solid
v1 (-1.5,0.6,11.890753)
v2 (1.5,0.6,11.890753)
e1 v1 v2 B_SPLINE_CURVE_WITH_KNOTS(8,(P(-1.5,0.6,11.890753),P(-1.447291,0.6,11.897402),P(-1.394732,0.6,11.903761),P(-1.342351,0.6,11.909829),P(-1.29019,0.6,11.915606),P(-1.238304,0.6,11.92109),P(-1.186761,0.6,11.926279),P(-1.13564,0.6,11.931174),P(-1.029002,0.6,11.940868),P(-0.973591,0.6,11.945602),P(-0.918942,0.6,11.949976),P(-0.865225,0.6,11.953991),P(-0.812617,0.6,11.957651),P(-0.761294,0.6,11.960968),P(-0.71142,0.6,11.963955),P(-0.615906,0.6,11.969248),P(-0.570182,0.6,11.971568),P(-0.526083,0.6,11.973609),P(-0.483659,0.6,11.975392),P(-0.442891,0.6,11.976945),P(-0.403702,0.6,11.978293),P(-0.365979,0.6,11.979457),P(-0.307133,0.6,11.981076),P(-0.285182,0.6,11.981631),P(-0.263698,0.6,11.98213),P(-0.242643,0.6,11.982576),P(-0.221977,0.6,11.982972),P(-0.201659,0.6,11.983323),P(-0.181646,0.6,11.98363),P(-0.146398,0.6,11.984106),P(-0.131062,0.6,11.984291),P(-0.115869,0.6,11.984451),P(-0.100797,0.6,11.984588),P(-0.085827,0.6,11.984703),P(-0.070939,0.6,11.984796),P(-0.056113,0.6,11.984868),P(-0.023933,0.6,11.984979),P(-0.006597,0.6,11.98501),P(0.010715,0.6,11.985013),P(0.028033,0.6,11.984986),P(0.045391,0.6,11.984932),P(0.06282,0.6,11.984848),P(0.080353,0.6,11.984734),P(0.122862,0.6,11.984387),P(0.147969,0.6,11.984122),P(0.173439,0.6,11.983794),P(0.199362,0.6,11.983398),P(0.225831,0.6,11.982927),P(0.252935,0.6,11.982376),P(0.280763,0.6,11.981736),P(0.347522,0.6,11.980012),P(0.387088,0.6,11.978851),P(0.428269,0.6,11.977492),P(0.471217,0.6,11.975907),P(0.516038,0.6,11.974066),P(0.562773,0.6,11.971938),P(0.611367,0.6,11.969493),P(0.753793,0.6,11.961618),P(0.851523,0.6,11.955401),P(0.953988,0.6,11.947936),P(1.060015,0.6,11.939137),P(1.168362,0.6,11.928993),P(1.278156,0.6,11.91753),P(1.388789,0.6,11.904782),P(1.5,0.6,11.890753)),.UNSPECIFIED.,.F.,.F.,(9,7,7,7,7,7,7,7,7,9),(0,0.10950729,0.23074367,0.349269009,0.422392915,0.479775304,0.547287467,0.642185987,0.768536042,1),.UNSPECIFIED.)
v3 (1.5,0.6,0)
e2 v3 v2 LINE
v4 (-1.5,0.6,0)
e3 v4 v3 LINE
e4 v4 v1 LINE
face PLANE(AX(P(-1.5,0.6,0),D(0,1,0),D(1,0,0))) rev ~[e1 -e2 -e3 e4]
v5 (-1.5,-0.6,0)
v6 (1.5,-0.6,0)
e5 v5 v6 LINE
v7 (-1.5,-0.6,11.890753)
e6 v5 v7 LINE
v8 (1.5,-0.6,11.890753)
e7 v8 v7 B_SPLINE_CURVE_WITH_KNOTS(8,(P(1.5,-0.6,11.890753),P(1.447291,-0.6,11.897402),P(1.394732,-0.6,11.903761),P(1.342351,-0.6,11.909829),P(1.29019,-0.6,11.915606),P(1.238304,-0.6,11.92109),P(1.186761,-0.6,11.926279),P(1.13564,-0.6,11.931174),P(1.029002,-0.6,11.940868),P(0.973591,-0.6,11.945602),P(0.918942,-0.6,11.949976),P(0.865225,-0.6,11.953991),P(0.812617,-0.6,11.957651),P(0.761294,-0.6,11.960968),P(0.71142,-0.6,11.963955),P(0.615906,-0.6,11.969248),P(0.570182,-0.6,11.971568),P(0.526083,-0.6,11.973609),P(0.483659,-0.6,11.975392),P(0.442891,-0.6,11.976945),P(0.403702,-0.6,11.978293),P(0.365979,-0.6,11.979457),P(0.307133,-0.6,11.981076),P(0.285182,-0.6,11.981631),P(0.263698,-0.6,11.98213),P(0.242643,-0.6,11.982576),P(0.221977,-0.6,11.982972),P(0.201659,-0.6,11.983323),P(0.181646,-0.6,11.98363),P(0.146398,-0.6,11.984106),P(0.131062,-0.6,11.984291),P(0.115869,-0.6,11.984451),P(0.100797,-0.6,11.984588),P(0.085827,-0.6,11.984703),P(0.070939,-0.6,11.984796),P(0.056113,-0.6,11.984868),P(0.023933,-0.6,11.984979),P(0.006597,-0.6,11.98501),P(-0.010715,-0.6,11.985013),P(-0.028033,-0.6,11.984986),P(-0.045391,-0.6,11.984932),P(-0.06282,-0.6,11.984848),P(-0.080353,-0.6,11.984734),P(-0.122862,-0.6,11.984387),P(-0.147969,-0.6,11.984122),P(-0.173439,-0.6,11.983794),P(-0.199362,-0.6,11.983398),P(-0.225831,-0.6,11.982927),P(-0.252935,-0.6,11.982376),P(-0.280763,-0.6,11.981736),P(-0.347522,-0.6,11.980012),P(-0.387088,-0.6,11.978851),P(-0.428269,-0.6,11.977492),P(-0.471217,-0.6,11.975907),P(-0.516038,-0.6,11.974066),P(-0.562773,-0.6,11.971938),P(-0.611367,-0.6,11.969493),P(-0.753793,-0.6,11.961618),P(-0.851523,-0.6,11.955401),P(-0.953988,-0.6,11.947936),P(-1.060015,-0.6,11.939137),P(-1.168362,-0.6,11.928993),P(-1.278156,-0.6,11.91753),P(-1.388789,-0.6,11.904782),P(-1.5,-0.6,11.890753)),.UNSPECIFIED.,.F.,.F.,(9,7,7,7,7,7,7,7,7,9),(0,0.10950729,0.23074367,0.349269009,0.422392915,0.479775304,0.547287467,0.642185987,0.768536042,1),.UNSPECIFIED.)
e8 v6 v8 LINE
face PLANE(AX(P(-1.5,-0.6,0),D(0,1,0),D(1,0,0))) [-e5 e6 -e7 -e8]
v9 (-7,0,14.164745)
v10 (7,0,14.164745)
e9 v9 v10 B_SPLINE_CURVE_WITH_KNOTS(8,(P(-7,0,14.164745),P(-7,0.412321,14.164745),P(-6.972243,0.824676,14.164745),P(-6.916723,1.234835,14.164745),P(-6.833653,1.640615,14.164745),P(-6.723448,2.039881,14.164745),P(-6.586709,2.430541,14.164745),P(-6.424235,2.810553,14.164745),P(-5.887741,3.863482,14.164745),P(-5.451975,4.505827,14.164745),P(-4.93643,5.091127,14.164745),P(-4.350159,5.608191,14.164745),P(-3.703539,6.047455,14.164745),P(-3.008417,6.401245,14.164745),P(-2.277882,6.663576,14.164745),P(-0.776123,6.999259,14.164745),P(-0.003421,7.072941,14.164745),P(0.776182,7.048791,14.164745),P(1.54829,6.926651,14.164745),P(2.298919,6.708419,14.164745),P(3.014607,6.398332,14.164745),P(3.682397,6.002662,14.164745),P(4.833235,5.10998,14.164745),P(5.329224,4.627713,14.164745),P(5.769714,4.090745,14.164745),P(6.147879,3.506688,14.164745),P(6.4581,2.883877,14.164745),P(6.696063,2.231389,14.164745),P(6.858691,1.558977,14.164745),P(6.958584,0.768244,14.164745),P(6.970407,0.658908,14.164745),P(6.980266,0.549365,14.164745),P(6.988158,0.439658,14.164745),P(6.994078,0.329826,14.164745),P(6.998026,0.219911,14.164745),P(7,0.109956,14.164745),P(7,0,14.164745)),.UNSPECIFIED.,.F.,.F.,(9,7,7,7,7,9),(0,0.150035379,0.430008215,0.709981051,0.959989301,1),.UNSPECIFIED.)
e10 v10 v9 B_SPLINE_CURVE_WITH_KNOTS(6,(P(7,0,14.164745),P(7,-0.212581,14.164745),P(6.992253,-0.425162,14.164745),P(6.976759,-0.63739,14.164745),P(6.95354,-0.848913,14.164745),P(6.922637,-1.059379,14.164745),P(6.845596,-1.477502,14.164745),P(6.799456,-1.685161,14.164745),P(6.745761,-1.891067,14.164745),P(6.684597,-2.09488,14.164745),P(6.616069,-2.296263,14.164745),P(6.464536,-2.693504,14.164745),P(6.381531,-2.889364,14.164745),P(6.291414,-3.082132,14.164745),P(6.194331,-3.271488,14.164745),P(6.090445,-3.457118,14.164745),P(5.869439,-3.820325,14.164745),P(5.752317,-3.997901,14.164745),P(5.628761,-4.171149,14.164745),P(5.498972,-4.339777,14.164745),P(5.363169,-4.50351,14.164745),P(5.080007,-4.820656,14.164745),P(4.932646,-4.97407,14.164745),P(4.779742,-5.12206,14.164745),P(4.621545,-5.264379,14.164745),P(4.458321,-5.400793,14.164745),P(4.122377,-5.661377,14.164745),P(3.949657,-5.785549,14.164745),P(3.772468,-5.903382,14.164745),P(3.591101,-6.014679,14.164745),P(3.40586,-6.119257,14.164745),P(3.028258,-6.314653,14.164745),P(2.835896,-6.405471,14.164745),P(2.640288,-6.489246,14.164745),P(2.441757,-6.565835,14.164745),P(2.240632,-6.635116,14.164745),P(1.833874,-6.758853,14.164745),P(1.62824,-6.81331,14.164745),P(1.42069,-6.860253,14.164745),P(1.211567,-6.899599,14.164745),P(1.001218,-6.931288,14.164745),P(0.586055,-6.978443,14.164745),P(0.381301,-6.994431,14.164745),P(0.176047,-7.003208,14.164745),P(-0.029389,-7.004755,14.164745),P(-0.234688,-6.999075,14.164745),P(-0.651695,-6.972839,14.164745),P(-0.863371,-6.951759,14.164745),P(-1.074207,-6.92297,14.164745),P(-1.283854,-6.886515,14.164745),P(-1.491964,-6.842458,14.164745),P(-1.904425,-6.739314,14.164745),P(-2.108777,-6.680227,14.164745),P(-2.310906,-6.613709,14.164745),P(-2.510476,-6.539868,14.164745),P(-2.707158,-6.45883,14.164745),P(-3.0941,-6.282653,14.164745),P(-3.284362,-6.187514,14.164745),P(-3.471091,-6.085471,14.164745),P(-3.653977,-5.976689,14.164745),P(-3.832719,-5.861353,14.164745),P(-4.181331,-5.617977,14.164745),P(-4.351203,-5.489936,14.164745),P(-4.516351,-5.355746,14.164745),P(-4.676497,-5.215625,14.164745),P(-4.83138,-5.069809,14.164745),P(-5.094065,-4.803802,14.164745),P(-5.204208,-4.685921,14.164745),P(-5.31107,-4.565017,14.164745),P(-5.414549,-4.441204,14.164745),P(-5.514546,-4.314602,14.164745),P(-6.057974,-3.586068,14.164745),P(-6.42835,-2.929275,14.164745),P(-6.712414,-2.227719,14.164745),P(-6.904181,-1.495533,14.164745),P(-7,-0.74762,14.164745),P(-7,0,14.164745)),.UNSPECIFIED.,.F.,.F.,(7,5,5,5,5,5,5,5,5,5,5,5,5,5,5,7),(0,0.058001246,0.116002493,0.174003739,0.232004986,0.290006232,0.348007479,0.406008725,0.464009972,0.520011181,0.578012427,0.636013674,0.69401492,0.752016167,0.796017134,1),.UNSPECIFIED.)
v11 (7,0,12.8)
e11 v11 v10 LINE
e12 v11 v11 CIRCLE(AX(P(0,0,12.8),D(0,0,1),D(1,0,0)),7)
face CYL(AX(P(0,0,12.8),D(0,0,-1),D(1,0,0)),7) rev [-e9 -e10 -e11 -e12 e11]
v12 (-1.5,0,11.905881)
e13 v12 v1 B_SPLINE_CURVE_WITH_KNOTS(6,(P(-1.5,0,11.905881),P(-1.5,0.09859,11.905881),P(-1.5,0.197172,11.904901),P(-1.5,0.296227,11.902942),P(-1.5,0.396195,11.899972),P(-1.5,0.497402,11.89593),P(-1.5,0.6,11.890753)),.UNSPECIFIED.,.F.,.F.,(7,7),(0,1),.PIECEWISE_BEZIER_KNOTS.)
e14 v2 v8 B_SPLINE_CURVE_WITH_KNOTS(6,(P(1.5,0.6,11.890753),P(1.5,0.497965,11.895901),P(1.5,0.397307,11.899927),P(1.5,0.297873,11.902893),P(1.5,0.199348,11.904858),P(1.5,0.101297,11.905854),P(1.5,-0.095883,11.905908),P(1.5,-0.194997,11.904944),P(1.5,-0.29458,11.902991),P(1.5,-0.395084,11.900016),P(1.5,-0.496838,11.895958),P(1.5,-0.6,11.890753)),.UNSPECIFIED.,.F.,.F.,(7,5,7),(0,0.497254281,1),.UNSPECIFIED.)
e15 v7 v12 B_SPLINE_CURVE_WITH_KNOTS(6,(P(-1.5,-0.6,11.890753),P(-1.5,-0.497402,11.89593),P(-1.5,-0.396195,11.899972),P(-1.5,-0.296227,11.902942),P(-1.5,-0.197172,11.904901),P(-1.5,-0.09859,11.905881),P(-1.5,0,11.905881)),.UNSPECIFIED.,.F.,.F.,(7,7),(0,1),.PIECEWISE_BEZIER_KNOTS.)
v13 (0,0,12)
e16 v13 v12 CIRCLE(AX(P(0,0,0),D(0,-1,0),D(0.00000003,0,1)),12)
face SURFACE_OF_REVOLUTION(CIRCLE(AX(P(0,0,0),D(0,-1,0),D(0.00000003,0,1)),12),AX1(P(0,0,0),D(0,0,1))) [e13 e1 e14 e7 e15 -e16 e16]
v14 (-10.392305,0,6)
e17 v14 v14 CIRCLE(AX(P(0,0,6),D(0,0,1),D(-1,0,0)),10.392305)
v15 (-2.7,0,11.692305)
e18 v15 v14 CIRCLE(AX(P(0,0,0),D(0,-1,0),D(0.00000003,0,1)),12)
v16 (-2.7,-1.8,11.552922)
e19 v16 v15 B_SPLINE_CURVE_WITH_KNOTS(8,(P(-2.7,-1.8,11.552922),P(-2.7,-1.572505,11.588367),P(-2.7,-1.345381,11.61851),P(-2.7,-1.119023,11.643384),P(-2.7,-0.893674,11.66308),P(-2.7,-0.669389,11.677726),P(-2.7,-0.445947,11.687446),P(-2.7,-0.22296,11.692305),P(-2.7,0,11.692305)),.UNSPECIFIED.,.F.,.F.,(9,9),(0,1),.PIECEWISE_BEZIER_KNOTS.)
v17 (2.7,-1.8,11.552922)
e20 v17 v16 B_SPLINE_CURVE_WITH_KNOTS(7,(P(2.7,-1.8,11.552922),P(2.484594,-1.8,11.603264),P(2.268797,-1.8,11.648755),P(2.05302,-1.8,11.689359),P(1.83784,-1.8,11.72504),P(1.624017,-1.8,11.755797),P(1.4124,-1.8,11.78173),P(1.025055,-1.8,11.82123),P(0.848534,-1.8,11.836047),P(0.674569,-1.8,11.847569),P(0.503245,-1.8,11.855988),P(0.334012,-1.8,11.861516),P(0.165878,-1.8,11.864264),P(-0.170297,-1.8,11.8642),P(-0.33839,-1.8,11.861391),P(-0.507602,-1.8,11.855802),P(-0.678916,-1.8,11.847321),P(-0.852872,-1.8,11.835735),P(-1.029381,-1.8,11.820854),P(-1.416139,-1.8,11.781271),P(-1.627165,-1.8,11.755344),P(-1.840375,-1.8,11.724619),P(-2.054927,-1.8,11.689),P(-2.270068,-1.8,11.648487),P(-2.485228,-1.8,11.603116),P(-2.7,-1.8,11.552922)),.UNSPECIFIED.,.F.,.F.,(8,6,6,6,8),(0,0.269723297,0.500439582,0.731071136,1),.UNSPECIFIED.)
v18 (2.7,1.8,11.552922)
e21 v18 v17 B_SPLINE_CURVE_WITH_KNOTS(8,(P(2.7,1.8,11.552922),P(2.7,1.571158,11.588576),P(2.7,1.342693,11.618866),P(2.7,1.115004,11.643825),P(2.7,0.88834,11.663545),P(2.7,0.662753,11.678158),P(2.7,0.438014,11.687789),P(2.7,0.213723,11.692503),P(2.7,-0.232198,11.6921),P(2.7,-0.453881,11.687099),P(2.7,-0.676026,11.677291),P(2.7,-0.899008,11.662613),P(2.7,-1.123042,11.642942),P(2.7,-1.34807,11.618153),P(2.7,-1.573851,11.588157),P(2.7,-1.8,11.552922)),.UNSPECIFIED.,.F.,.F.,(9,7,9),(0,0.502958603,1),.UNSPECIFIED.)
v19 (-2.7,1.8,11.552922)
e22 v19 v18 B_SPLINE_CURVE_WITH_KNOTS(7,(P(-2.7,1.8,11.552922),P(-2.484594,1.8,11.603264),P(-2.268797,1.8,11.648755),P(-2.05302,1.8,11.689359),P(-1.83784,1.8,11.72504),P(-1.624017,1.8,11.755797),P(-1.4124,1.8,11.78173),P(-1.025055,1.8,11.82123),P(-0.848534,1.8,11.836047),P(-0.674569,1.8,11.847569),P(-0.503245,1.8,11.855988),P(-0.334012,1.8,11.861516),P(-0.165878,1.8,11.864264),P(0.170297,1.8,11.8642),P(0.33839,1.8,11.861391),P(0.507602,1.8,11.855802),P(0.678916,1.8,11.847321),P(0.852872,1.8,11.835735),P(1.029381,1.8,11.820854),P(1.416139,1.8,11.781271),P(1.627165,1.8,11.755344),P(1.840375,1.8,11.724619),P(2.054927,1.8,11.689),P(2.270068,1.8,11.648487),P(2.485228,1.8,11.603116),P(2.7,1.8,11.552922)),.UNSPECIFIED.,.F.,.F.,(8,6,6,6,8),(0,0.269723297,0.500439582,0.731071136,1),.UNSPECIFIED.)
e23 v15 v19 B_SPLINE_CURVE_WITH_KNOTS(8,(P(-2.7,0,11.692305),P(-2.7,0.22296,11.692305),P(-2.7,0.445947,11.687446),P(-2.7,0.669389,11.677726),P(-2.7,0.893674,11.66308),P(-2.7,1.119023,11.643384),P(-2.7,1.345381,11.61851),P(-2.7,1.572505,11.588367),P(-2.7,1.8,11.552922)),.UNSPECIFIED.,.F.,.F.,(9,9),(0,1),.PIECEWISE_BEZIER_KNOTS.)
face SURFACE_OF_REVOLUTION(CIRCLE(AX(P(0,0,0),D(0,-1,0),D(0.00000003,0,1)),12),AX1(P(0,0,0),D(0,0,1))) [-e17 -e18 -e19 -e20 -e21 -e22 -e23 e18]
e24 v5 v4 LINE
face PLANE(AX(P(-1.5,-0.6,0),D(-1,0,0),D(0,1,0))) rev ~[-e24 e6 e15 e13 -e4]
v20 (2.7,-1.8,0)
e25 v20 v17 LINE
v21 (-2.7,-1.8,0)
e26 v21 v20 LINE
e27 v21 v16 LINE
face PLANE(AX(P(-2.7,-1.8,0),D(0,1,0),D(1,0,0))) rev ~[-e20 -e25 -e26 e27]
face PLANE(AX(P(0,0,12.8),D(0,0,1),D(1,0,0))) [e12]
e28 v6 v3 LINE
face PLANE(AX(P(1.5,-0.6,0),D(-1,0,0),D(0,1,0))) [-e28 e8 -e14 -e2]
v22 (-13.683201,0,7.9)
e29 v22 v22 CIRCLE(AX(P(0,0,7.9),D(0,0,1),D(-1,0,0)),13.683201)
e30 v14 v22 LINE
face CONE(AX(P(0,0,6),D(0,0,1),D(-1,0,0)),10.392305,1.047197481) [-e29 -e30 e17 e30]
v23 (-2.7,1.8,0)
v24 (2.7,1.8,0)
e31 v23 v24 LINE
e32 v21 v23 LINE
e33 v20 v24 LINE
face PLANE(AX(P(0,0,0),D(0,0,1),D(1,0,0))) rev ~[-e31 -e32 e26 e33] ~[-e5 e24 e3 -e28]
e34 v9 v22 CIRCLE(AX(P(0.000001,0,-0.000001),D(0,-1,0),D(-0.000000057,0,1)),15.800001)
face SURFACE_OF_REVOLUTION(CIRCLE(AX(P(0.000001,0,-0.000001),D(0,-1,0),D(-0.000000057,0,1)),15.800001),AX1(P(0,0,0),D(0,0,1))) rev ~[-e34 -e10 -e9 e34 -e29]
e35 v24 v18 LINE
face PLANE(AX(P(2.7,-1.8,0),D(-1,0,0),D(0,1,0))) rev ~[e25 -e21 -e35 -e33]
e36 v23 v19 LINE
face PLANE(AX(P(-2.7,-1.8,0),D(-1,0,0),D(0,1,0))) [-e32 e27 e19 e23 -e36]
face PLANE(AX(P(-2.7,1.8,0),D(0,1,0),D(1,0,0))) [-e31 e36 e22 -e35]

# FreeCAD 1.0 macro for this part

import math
import FreeCAD as App
import Part
import Sketcher
from FreeCAD import Vector
Q = App.Units.Quantity

doc = App.newDocument("Part")
body = doc.addObject("PartDesign::Body", "Body")

# Sketch on XY plane
sketch1 = body.newObject("Sketcher::SketchObject", "Sketch")
sketch1.AttachmentSupport = (doc.getObject("XY_Plane"), [""])
sketch1.MapMode = "FlatFace"
sketch1.AttachmentOffset = App.Placement(Vector(0, 0, 12.8), App.Rotation())
sketch1.addGeometry(Part.Circle(Vector(0, 0, 0), Vector(0, 0, 1), 7), False)
sketch1.addConstraint([
    Sketcher.Constraint("Coincident", 0, 3, -1, 1),
    Sketcher.Constraint("Diameter", 0, Q("14 mm")),
])
pad1 = body.newObject("PartDesign::Pad", "Pad")
pad1.Profile = sketch1
pad1.Length = 5
body2 = doc.addObject("PartDesign::Body", "Body001")

# Sketch on XZ plane
sketch2 = body2.newObject("Sketcher::SketchObject", "Sketch001")
sketch2.AttachmentSupport = (doc.getObject("XZ_Plane001"), [""])
sketch2.MapMode = "FlatFace"
sketch2.addGeometry([
    Part.ArcOfCircle(Part.Circle(Vector(0, 0, 0), Vector(0, 0, 1), 15.8), math.radians(90), math.radians(150)),
    Part.LineSegment(Vector(-13.7, 7.9, 0), Vector(-10.4, 6, 0)),
    Part.ArcOfCircle(Part.Circle(Vector(0, 0, 0), Vector(0, 0, 1), 12), math.radians(90), math.radians(150)),
    Part.LineSegment(Vector(0, 12, 0), Vector(0, 15.8, 0)),
], False)
sketch2.addConstraint([
    Sketcher.Constraint("Coincident", 0, 2, 1, 1),
    Sketcher.Constraint("Coincident", 1, 2, 2, 2),
    Sketcher.Constraint("Coincident", 2, 1, 3, 1),
    Sketcher.Constraint("Coincident", 3, 2, 0, 1),
    Sketcher.Constraint("Vertical", 3),
    Sketcher.Constraint("Coincident", 0, 3, -1, 1),
    Sketcher.Constraint("Coincident", 2, 3, -1, 1),
    Sketcher.Constraint("PointOnObject", 2, 1, -2),
    Sketcher.Constraint("Radius", 2, Q("12 mm")),
    Sketcher.Constraint("Radius", 0, Q("15.800001 mm")),
    Sketcher.Constraint("Angle", 1, Q("-30.000004 deg")),
    Sketcher.Constraint("DistanceY", -1, 1, 1, 2, Q("6 mm")),
])
revolution = body2.newObject("PartDesign::Revolution", "Revolution")
revolution.Profile = sketch2
revolution.ReferenceAxis = (sketch2, ["V_Axis"])
revolution.Angle = 360
body3 = doc.addObject("PartDesign::Body", "Body002")

# Sketch on XY plane
sketch3 = body3.newObject("Sketcher::SketchObject", "Sketch002")
sketch3.AttachmentSupport = (doc.getObject("XY_Plane002"), [""])
sketch3.MapMode = "FlatFace"
sketch3.addGeometry([
    Part.LineSegment(Vector(-2.7, 1.8, 0), Vector(-2.7, -1.8, 0)),  # 0
    Part.LineSegment(Vector(-2.7, -1.8, 0), Vector(2.7, -1.8, 0)),  # 1
    Part.LineSegment(Vector(2.7, -1.8, 0), Vector(2.7, 1.8, 0)),  # 2
    Part.LineSegment(Vector(2.7, 1.8, 0), Vector(-2.7, 1.8, 0)),  # 3
    Part.LineSegment(Vector(1.5, -0.6, 0), Vector(-1.5, -0.6, 0)),  # 4
    Part.LineSegment(Vector(-1.5, -0.6, 0), Vector(-1.5, 0.6, 0)),  # 5
    Part.LineSegment(Vector(-1.5, 0.6, 0), Vector(1.5, 0.6, 0)),  # 6
    Part.LineSegment(Vector(1.5, 0.6, 0), Vector(1.5, -0.6, 0)),  # 7
], False)
sketch3.addConstraint([
    Sketcher.Constraint("Coincident", 0, 2, 1, 1),
    Sketcher.Constraint("Coincident", 1, 2, 2, 1),
    Sketcher.Constraint("Coincident", 2, 2, 3, 1),
    Sketcher.Constraint("Coincident", 3, 2, 0, 1),
    Sketcher.Constraint("Coincident", 4, 2, 5, 1),
    Sketcher.Constraint("Coincident", 5, 2, 6, 1),
    Sketcher.Constraint("Coincident", 6, 2, 7, 1),
    Sketcher.Constraint("Coincident", 7, 2, 4, 1),
    Sketcher.Constraint("Vertical", 0),
    Sketcher.Constraint("Horizontal", 1),
    Sketcher.Constraint("Vertical", 2),
    Sketcher.Constraint("Horizontal", 3),
    Sketcher.Constraint("Horizontal", 4),
    Sketcher.Constraint("Vertical", 5),
    Sketcher.Constraint("Horizontal", 6),
    Sketcher.Constraint("Vertical", 7),
    Sketcher.Constraint("Symmetric", 0, 2, 2, 2, -1, 1),
    Sketcher.Constraint("Symmetric", 4, 2, 6, 2, -1, 1),
    Sketcher.Constraint("DistanceX", 4, 2, 4, 1, Q("3 mm")),
    Sketcher.Constraint("DistanceX", 1, 1, 1, 2, Q("5.4 mm")),
    Sketcher.Constraint("DistanceY", 0, 2, 0, 1, Q("3.6 mm")),
    Sketcher.Constraint("DistanceY", 5, 1, 5, 2, Q("1.2 mm")),
])
pad2 = body3.newObject("PartDesign::Pad", "Pad001")
pad2.Profile = sketch3
pad2.Length = 15.5
doc.recompute()

boolean = body3.newObject("PartDesign::Boolean", "Boolean")
boolean.Type = "Fuse"
boolean.addObjects([body2])
doc.recompute()

boolean2 = body3.newObject("PartDesign::Boolean", "Boolean001")
boolean2.Type = "Cut"
boolean2.addObjects([body])

doc.recompute()
